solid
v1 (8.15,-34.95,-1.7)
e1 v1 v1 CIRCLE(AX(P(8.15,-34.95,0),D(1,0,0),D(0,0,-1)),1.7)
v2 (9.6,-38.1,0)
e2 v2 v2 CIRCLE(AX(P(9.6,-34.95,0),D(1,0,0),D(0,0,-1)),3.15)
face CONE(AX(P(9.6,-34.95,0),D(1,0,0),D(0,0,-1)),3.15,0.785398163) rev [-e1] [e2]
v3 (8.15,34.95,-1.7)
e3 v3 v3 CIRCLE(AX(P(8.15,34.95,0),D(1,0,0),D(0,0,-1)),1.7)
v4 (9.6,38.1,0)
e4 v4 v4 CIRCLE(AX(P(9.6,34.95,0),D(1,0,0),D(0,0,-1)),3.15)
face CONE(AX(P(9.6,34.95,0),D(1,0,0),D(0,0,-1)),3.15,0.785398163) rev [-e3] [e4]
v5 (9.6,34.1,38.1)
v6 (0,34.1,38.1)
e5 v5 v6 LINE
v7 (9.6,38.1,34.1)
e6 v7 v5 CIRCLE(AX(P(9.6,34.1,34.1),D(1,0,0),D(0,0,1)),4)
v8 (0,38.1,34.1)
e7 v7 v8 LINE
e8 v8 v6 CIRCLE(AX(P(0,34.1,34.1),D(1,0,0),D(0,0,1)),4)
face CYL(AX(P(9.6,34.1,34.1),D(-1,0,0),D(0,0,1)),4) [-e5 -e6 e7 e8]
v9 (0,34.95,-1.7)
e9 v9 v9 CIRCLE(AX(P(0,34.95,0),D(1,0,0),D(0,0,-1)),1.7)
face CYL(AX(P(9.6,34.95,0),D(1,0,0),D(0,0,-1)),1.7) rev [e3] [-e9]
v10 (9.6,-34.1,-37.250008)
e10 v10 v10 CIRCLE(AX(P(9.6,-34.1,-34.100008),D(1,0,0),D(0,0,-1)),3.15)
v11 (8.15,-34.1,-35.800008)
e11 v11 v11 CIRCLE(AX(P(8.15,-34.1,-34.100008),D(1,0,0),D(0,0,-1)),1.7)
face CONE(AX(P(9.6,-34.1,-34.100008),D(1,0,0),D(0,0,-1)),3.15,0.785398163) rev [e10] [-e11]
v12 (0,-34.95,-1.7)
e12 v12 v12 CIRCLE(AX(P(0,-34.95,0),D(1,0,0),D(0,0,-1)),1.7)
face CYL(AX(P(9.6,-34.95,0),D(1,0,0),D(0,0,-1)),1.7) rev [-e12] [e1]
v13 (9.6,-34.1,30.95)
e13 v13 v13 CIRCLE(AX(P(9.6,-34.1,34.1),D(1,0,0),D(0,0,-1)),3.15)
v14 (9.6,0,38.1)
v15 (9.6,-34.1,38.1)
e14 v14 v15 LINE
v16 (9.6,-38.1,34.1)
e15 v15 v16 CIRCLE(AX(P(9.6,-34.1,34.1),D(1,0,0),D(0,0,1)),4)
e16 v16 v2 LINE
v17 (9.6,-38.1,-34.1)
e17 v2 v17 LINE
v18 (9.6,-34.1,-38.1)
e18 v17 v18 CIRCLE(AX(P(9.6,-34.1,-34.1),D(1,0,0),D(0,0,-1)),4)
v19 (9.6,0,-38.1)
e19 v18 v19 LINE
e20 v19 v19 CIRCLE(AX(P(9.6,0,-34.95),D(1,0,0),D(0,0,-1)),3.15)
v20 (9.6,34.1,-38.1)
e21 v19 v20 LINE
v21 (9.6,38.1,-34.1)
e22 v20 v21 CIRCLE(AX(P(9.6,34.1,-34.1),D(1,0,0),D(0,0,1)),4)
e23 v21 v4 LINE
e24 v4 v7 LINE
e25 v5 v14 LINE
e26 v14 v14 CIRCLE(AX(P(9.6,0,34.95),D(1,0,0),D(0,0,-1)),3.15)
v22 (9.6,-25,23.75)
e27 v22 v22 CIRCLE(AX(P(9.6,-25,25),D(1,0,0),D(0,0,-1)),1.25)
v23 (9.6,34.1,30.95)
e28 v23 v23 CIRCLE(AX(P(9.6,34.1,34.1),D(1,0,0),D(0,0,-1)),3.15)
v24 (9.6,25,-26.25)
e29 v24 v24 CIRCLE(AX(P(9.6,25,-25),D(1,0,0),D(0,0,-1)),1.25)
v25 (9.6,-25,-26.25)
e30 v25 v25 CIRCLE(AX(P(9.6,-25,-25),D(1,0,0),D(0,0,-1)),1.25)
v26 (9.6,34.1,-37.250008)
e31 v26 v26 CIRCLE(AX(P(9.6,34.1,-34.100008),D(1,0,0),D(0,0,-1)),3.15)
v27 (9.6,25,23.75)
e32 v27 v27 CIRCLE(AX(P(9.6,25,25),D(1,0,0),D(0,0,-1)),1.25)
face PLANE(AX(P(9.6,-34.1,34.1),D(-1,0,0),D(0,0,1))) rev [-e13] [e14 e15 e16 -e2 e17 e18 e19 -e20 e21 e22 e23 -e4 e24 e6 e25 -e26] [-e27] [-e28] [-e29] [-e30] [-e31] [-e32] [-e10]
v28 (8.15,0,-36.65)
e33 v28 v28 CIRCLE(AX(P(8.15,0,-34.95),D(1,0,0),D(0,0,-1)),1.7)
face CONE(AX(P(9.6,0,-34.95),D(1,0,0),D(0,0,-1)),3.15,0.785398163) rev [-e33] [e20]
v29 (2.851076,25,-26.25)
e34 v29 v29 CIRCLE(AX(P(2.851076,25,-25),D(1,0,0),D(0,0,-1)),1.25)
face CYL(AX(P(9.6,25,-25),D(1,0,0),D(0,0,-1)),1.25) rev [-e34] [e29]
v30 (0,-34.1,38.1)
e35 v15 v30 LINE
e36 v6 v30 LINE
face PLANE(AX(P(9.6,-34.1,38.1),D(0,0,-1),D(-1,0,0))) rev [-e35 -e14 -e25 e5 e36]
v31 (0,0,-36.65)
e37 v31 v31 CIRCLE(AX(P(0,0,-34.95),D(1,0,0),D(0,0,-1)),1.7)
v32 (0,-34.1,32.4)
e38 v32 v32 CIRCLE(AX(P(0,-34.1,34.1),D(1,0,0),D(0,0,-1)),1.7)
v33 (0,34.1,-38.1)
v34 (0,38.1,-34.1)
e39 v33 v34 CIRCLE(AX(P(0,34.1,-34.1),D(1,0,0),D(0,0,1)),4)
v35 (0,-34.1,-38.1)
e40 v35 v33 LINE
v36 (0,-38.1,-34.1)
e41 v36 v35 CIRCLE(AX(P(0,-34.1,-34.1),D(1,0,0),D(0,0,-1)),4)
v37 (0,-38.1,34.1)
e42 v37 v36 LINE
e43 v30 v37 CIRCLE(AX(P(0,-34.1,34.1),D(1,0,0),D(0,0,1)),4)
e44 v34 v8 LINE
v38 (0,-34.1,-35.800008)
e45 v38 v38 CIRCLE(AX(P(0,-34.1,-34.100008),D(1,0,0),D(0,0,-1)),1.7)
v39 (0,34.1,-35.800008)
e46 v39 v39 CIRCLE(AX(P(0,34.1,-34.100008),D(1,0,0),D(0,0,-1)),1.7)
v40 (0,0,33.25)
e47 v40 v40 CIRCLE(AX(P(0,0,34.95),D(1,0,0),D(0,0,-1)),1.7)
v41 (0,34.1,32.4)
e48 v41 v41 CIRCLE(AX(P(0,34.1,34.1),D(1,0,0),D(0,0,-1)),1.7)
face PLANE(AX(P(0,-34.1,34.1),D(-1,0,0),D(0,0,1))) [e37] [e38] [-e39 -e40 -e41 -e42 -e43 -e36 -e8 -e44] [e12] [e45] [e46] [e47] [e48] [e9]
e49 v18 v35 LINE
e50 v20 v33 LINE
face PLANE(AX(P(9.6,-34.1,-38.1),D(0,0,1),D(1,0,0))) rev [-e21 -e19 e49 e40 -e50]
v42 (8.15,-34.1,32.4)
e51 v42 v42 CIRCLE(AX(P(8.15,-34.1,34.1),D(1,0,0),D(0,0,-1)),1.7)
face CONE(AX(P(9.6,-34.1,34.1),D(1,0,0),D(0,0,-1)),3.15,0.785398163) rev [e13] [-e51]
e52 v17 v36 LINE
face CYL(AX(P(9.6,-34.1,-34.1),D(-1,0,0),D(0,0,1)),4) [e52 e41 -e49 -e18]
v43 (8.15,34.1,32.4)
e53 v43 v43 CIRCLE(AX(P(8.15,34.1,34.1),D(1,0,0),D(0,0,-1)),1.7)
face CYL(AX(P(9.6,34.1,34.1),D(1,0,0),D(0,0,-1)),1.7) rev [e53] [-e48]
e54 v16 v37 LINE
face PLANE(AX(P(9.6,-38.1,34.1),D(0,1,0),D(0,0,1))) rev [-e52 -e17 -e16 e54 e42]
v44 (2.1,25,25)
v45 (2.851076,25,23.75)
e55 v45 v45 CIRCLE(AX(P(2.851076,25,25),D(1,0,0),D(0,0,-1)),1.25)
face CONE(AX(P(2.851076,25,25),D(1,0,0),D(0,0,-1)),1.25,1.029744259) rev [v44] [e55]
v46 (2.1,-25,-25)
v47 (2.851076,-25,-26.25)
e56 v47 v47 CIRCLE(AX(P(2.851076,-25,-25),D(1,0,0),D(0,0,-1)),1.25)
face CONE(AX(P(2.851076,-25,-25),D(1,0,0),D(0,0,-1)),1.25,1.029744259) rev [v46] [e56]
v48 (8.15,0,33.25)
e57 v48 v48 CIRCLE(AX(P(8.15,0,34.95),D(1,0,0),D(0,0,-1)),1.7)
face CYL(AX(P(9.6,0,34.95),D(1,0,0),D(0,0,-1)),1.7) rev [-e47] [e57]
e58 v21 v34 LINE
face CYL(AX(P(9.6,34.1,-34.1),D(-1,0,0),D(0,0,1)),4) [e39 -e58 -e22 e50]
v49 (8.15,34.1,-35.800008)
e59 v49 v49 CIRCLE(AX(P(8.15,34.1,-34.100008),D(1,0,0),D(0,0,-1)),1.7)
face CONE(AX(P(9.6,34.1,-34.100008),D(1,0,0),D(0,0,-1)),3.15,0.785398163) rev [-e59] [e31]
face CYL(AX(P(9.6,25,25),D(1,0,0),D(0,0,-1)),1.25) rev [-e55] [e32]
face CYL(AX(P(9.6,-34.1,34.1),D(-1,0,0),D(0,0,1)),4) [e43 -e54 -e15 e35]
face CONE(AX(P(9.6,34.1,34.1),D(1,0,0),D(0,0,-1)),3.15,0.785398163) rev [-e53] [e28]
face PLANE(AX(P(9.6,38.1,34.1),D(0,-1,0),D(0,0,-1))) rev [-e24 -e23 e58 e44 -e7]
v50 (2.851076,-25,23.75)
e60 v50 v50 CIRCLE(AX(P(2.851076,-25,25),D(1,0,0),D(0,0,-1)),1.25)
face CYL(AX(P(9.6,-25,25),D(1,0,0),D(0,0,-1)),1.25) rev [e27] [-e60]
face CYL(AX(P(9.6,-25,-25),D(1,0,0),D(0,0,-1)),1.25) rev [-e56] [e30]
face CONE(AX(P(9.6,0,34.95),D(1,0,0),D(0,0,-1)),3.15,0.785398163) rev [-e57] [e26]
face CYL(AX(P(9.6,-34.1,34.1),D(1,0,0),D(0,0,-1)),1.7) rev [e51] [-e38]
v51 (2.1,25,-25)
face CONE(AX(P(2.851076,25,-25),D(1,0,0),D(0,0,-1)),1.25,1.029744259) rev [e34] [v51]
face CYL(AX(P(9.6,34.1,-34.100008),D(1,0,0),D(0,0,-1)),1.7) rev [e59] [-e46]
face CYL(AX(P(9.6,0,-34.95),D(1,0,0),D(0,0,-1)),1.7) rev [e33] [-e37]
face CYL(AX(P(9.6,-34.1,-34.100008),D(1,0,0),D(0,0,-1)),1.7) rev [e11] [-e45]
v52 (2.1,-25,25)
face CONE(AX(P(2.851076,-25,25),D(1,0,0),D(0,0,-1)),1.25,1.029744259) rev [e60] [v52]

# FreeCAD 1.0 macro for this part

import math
import FreeCAD as App
import Part
import Sketcher
from FreeCAD import Vector
Q = App.Units.Quantity

doc = App.newDocument("Part")
body = doc.addObject("PartDesign::Body", "Body")

# Sketch on YZ plane
sketch1 = body.newObject("Sketcher::SketchObject", "Sketch")
sketch1.AttachmentSupport = (doc.getObject("YZ_Plane"), [""])
sketch1.MapMode = "FlatFace"
sketch1.addGeometry([
    Part.LineSegment(Vector(-38.1, 34.1, 0), Vector(-38.1, -34.1, 0)),  # 0
    Part.ArcOfCircle(Part.Circle(Vector(-34.1, -34.1, 0), Vector(0, 0, 1), 4), math.radians(180), math.radians(270)),  # 1
    Part.LineSegment(Vector(-34.1, -38.1, 0), Vector(34.1, -38.1, 0)),  # 2
    Part.ArcOfCircle(Part.Circle(Vector(34.1, -34.1, 0), Vector(0, 0, 1), 4), math.radians(-90), math.radians(0)),  # 3
    Part.LineSegment(Vector(38.1, -34.1, 0), Vector(38.1, 34.1, 0)),  # 4
    Part.ArcOfCircle(Part.Circle(Vector(34.1, 34.1, 0), Vector(0, 0, 1), 4), math.radians(0), math.radians(90)),  # 5
    Part.LineSegment(Vector(34.1, 38.1, 0), Vector(-34.1, 38.1, 0)),  # 6
    Part.ArcOfCircle(Part.Circle(Vector(-34.1, 34.1, 0), Vector(0, 0, 1), 4), math.radians(90), math.radians(180)),  # 7
], False)
sketch1.addConstraint([
    Sketcher.Constraint("Tangent", 0, 2, 1, 1),
    Sketcher.Constraint("Tangent", 1, 2, 2, 1),
    Sketcher.Constraint("Tangent", 2, 2, 3, 1),
    Sketcher.Constraint("Tangent", 3, 2, 4, 1),
    Sketcher.Constraint("Tangent", 4, 2, 5, 1),
    Sketcher.Constraint("Tangent", 5, 2, 6, 1),
    Sketcher.Constraint("Tangent", 6, 2, 7, 1),
    Sketcher.Constraint("Tangent", 7, 2, 0, 1),
    Sketcher.Constraint("Vertical", 0),
    Sketcher.Constraint("Horizontal", 2),
    Sketcher.Constraint("Vertical", 4),
    Sketcher.Constraint("Horizontal", 6),
    Sketcher.Constraint("Equal", 1, 3),
    Sketcher.Constraint("Equal", 3, 5),
    Sketcher.Constraint("Equal", 5, 7),
    Sketcher.Constraint("Symmetric", 1, 3, 5, 3, -1, 1),
    Sketcher.Constraint("Equal", 6, 0),
    Sketcher.Constraint("Radius", 1, Q("4 mm")),
    Sketcher.Constraint("DistanceX", 2, 1, 2, 2, Q("68.2 mm")),
])
pad1 = body.newObject("PartDesign::Pad", "Pad")
pad1.Profile = sketch1
pad1.Length = 9.6

# Sketch on YZ plane
sketch2 = body.newObject("Sketcher::SketchObject", "Sketch001")
sketch2.AttachmentSupport = (doc.getObject("YZ_Plane"), [""])
sketch2.MapMode = "FlatFace"
sketch2.AttachmentOffset = App.Placement(Vector(0, 0, 9.6), App.Rotation())
sketch2.addGeometry([
    Part.Circle(Vector(34.1, -34.100008, 0), Vector(0, 0, 1), 1.7),  # 0
    Part.Circle(Vector(34.1, 34.1, 0), Vector(0, 0, 1), 1.7),  # 1
    Part.Circle(Vector(-34.1, 34.1, 0), Vector(0, 0, 1), 1.7),  # 2
    Part.Circle(Vector(-34.1, -34.100008, 0), Vector(0, 0, 1), 1.7),  # 3
    Part.Circle(Vector(34.95, 0, 0), Vector(0, 0, 1), 1.7),  # 4
    Part.Circle(Vector(0, 34.95, 0), Vector(0, 0, 1), 1.7),  # 5
    Part.Circle(Vector(-34.95, 0, 0), Vector(0, 0, 1), 1.7),  # 6
    Part.Circle(Vector(0, -34.95, 0), Vector(0, 0, 1), 1.7),  # 7
], False)
sketch2.addConstraint([
    Sketcher.Constraint("Equal", 0, 1),
    Sketcher.Constraint("Equal", 1, 2),
    Sketcher.Constraint("Equal", 2, 3),
    Sketcher.Constraint("Equal", 3, 4),
    Sketcher.Constraint("Equal", 4, 5),
    Sketcher.Constraint("Equal", 5, 6),
    Sketcher.Constraint("Equal", 6, 7),
    Sketcher.Constraint("Symmetric", 0, 3, 2, 3, -1, 1),
    Sketcher.Constraint("Symmetric", 1, 3, 3, 3, -1, 1),
    Sketcher.Constraint("Symmetric", 4, 3, 6, 3, -1, 1),
    Sketcher.Constraint("Symmetric", 5, 3, 7, 3, -1, 1),
    Sketcher.Constraint("Symmetric", 1, 3, 2, 3, -2),
    Sketcher.Constraint("PointOnObject", 4, 3, -1),
    Sketcher.Constraint("PointOnObject", 5, 3, -2),
    Sketcher.Constraint("Diameter", 0, Q("3.4 mm")),
    Sketcher.Constraint("DistanceX", -1, 1, 0, 3, Q("34.1 mm")),
    Sketcher.Constraint("DistanceY", -1, 1, 1, 3, Q("34.1 mm")),
    Sketcher.Constraint("DistanceX", 6, 3, 4, 3, Q("69.9 mm")),
    Sketcher.Constraint("DistanceY", 7, 3, 5, 3, Q("69.9 mm")),
])
doc.recompute()
hole = body.newObject("PartDesign::Hole", "Hole")
hole.Profile = sketch2
hole.ThreadType = "None"
hole.Diameter = 3.4
hole.DepthType = "ThroughAll"
hole.HoleCutType = "Countersink"
hole.HoleCutDiameter = 6.3
hole.HoleCutCountersinkAngle = 90

# Sketch on YZ plane
sketch3 = body.newObject("Sketcher::SketchObject", "Sketch002")
sketch3.AttachmentSupport = (doc.getObject("YZ_Plane"), [""])
sketch3.MapMode = "FlatFace"
sketch3.AttachmentOffset = App.Placement(Vector(0, 0, 9.6), App.Rotation())
sketch3.addGeometry([
    Part.Circle(Vector(25, 25, 0), Vector(0, 0, 1), 1.25),
    Part.Circle(Vector(25, -25, 0), Vector(0, 0, 1), 1.25),
    Part.Circle(Vector(-25, -25, 0), Vector(0, 0, 1), 1.25),
    Part.Circle(Vector(-25, 25, 0), Vector(0, 0, 1), 1.25),
], False)
sketch3.addConstraint([
    Sketcher.Constraint("Equal", 0, 1),
    Sketcher.Constraint("Equal", 1, 2),
    Sketcher.Constraint("Equal", 2, 3),
    Sketcher.Constraint("Symmetric", 0, 3, 2, 3, -1, 1),
    Sketcher.Constraint("Symmetric", 1, 3, 3, 3, -1, 1),
    Sketcher.Constraint("Symmetric", 1, 3, 2, 3, -2),
    Sketcher.Constraint("Diameter", 0, Q("2.5 mm")),
    Sketcher.Constraint("DistanceX", -1, 1, 0, 3, Q("25 mm")),
    Sketcher.Constraint("DistanceY", -1, 1, 0, 3, Q("25 mm")),
])
doc.recompute()
hole2 = body.newObject("PartDesign::Hole", "Hole001")
hole2.Profile = sketch3
hole2.ThreadType = "None"
hole2.Diameter = 2.5
hole2.DepthType = "Dimension"
hole2.Depth = 6.748924
hole2.DrillPoint = "Angled"
hole2.DrillPointAngle = 118

doc.recompute()
